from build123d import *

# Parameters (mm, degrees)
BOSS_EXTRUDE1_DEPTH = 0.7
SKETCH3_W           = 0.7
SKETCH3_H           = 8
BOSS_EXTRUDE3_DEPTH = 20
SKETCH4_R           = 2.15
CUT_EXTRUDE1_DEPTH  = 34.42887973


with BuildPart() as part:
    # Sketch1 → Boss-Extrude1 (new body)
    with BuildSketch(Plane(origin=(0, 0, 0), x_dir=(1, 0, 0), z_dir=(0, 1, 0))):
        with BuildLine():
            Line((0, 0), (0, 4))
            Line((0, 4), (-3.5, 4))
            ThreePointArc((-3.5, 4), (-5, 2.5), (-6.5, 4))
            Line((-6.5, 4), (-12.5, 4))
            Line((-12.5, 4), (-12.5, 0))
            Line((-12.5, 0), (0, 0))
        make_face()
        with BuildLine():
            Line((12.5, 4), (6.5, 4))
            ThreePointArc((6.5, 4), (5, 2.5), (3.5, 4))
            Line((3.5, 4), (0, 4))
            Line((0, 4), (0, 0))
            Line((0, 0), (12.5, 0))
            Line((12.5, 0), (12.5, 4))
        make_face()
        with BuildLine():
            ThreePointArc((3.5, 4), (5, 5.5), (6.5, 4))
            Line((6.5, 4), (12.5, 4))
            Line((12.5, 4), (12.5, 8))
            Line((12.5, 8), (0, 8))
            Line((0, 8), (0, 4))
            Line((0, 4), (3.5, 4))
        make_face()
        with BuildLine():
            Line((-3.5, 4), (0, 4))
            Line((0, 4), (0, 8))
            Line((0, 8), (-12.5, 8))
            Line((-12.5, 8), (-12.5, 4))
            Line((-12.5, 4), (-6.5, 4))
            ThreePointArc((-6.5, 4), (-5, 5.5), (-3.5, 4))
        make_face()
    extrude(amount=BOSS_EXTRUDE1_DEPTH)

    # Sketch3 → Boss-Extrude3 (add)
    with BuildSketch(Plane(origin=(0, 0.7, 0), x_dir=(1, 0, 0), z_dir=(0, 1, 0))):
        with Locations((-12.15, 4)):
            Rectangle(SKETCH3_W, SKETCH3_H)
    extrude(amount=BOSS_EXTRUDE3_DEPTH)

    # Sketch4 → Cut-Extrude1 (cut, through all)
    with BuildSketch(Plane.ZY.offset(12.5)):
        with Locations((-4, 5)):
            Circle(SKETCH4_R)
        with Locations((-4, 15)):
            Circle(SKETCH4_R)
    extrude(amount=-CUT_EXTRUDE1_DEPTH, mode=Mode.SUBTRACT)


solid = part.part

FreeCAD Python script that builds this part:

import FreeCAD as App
import Part
import Sketcher
from FreeCAD import Vector
Q = App.Units.Quantity

doc = App.newDocument("Part")
body = doc.addObject("PartDesign::Body", "Body")

# Sketch on XZ plane
sketch1 = body.newObject("Sketcher::SketchObject", "Sketch")
sketch1.AttachmentSupport = (doc.getObject("XZ_Plane"), [""])
sketch1.MapMode = "FlatFace"
sketch1.addGeometry(Part.LineSegment(Vector(-12.5, 0, 0), Vector(12.5, 0, 0)), False)
sketch1.addGeometry(Part.LineSegment(Vector(12.5, 0, 0), Vector(12.5, -8, 0)), False)
sketch1.addGeometry(Part.LineSegment(Vector(12.5, -8, 0), Vector(-12.5, -8, 0)), False)
sketch1.addGeometry(Part.LineSegment(Vector(-12.5, -8, 0), Vector(-12.5, 0, 0)), False)
sketch1.addGeometry(Part.Circle(Vector(-5, -4, 0), Vector(0, 0, 1), 1.5), False)
sketch1.addGeometry(Part.Circle(Vector(5, -4, 0), Vector(0, 0, 1), 1.5), False)
sketch1.addConstraint(Sketcher.Constraint("Coincident", 0, 2, 1, 1))
sketch1.addConstraint(Sketcher.Constraint("Coincident", 1, 2, 2, 1))
sketch1.addConstraint(Sketcher.Constraint("Coincident", 2, 2, 3, 1))
sketch1.addConstraint(Sketcher.Constraint("Coincident", 3, 2, 0, 1))
sketch1.addConstraint(Sketcher.Constraint("Horizontal", 0))
sketch1.addConstraint(Sketcher.Constraint("Vertical", 1))
sketch1.addConstraint(Sketcher.Constraint("Horizontal", 2))
sketch1.addConstraint(Sketcher.Constraint("Vertical", 3))
sketch1.addConstraint(Sketcher.Constraint("Equal", 4, 5))
sketch1.addConstraint(Sketcher.Constraint("Symmetric", 0, 2, 3, 2, -1, 1))
sketch1.addConstraint(Sketcher.Constraint("Symmetric", 4, 3, 5, 3, -2))
sketch1.addConstraint(Sketcher.Constraint("Diameter", 4, Q("3 mm")))
sketch1.addConstraint(Sketcher.Constraint("DistanceX", 0, 1, 0, 2, Q("25 mm")))
sketch1.addConstraint(Sketcher.Constraint("DistanceY", 1, 2, 1, 1, Q("8 mm")))
sketch1.addConstraint(Sketcher.Constraint("DistanceX", 4, 3, -1, 1, Q("5 mm")))
sketch1.addConstraint(Sketcher.Constraint("DistanceY", 4, 3, -1, 1, Q("4 mm")))
pad1 = body.newObject("PartDesign::Pad", "Pad")
pad1.Profile = sketch1
pad1.Length = 0.7
pad1.Reversed = True

# Sketch on XZ plane
sketch2 = body.newObject("Sketcher::SketchObject", "Sketch001")
sketch2.AttachmentSupport = (doc.getObject("XZ_Plane"), [""])
sketch2.MapMode = "FlatFace"
sketch2.AttachmentOffset = App.Placement(Vector(0, 0, -0.7), App.Rotation())
sketch2.addGeometry(Part.LineSegment(Vector(-12.5, -8, 0), Vector(-12.5, 0, 0)), False)
sketch2.addGeometry(Part.LineSegment(Vector(-12.5, 0, 0), Vector(-11.8, 0, 0)), False)
sketch2.addGeometry(Part.LineSegment(Vector(-11.8, 0, 0), Vector(-11.8, -8, 0)), False)
sketch2.addGeometry(Part.LineSegment(Vector(-11.8, -8, 0), Vector(-12.5, -8, 0)), False)
sketch2.addConstraint(Sketcher.Constraint("Coincident", 0, 2, 1, 1))
sketch2.addConstraint(Sketcher.Constraint("Coincident", 1, 2, 2, 1))
sketch2.addConstraint(Sketcher.Constraint("Coincident", 2, 2, 3, 1))
sketch2.addConstraint(Sketcher.Constraint("Coincident", 3, 2, 0, 1))
sketch2.addConstraint(Sketcher.Constraint("Vertical", 0))
sketch2.addConstraint(Sketcher.Constraint("Horizontal", 1))
sketch2.addConstraint(Sketcher.Constraint("Vertical", 2))
sketch2.addConstraint(Sketcher.Constraint("Horizontal", 3))
sketch2.addConstraint(Sketcher.Constraint("PointOnObject", 0, 2, -1))
sketch2.addConstraint(Sketcher.Constraint("DistanceY", 0, 1, 0, 2, Q("8 mm")))
sketch2.addConstraint(Sketcher.Constraint("DistanceX", 1, 1, 1, 2, Q("0.7 mm")))
sketch2.addConstraint(Sketcher.Constraint("DistanceX", 0, 2, -1, 1, Q("12.5 mm")))
pad2 = body.newObject("PartDesign::Pad", "Pad001")
pad2.Profile = sketch2
pad2.Length = 20
pad2.Reversed = True

# Sketch on YZ plane
sketch3 = body.newObject("Sketcher::SketchObject", "Sketch002")
sketch3.AttachmentSupport = (doc.getObject("YZ_Plane"), [""])
sketch3.MapMode = "FlatFace"
sketch3.AttachmentOffset = App.Placement(Vector(0, 0, -12.5), App.Rotation())
sketch3.addGeometry(Part.Circle(Vector(5, -4, 0), Vector(0, 0, 1), 2.15), False)
sketch3.addGeometry(Part.Circle(Vector(15, -4, 0), Vector(0, 0, 1), 2.15), False)
sketch3.addConstraint(Sketcher.Constraint("Equal", 0, 1))
sketch3.addConstraint(Sketcher.Constraint("Horizontal", 0, 3, 1, 3))
sketch3.addConstraint(Sketcher.Constraint("Diameter", 0, Q("4.3 mm")))
sketch3.addConstraint(Sketcher.Constraint("DistanceX", -1, 1, 0, 3, Q("5 mm")))
sketch3.addConstraint(Sketcher.Constraint("DistanceY", 0, 3, -1, 1, Q("4 mm")))
sketch3.addConstraint(Sketcher.Constraint("DistanceX", -1, 1, 1, 3, Q("15 mm")))
pocket1 = body.newObject("PartDesign::Pocket", "Pocket")
pocket1.Profile = sketch3
pocket1.Type = "ThroughAll"
pocket1.Reversed = True

doc.recompute()
